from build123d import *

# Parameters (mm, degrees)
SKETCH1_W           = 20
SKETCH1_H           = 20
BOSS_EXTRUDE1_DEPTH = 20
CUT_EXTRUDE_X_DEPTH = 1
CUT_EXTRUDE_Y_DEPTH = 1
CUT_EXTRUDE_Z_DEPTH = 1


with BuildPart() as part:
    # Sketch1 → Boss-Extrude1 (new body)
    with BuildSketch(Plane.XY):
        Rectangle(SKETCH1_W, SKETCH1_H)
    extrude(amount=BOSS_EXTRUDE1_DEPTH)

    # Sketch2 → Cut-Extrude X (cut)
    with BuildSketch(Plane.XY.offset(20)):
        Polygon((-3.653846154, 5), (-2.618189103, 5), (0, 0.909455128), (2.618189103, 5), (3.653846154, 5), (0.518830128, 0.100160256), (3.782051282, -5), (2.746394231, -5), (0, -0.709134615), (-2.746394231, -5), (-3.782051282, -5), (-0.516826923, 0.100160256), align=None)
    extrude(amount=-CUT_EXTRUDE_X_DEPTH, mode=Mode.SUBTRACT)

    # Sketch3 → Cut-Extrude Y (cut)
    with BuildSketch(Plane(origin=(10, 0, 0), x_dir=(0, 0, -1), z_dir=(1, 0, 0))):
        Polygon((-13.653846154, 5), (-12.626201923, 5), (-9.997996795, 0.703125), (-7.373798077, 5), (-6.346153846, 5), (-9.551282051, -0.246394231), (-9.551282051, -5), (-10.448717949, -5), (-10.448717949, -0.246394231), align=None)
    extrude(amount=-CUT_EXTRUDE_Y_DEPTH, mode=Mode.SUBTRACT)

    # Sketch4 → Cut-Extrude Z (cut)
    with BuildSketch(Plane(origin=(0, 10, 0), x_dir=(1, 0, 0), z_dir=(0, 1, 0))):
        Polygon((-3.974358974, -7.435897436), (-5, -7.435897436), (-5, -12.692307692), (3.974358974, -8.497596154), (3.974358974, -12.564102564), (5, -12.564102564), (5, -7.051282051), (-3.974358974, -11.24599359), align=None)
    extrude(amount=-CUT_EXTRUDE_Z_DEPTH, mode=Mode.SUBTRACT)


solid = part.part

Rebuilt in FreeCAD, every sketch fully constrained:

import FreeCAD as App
import Part
import Sketcher
from FreeCAD import Vector
Q = App.Units.Quantity

doc = App.newDocument("Part")
body = doc.addObject("PartDesign::Body", "Body")

sketch1 = body.newObject("Sketcher::SketchObject", "Sketch")
sketch1.AttachmentSupport = (doc.getObject("XY_Plane"), [""])
sketch1.MapMode = "FlatFace"
sketch1.addGeometry([
    Part.LineSegment(Vector(-10, 10, 0), Vector(-10, -10, 0)),
    Part.LineSegment(Vector(-10, -10, 0), Vector(10, -10, 0)),
    Part.LineSegment(Vector(10, -10, 0), Vector(10, 10, 0)),
    Part.LineSegment(Vector(10, 10, 0), Vector(-10, 10, 0)),
], False)
sketch1.addConstraint([
    Sketcher.Constraint("Coincident", 0, 2, 1, 1),
    Sketcher.Constraint("Coincident", 1, 2, 2, 1),
    Sketcher.Constraint("Coincident", 2, 2, 3, 1),
    Sketcher.Constraint("Coincident", 3, 2, 0, 1),
    Sketcher.Constraint("Vertical", 0),
    Sketcher.Constraint("Horizontal", 1),
    Sketcher.Constraint("Vertical", 2),
    Sketcher.Constraint("Horizontal", 3),
    Sketcher.Constraint("Symmetric", 0, 2, 2, 2, -1, 1),
    Sketcher.Constraint("Equal", 3, 0),
    Sketcher.Constraint("DistanceX", 1, 1, 1, 2, Q("20 mm")),
])
pad1 = body.newObject("PartDesign::Pad", "Pad")
pad1.Profile = sketch1
pad1.Length = 20

sketch2 = body.newObject("Sketcher::SketchObject", "Sketch001")
sketch2.AttachmentSupport = (doc.getObject("XY_Plane"), [""])
sketch2.MapMode = "FlatFace"
sketch2.AttachmentOffset = App.Placement(Vector(0, 0, 20), App.Rotation())
sketch2.addGeometry([
    Part.LineSegment(Vector(-2.6, 5, 0), Vector(-3.7, 5, 0)),
    Part.LineSegment(Vector(-3.7, 5, 0), Vector(-0.5, 0.1, 0)),
    Part.LineSegment(Vector(-0.5, 0.1, 0), Vector(-3.8, -5, 0)),
    Part.LineSegment(Vector(-3.8, -5, 0), Vector(-2.7, -5, 0)),
    Part.LineSegment(Vector(-2.7, -5, 0), Vector(0, -0.7, 0)),
    Part.LineSegment(Vector(0, -0.7, 0), Vector(2.7, -5, 0)),
    Part.LineSegment(Vector(2.7, -5, 0), Vector(3.8, -5, 0)),
    Part.LineSegment(Vector(3.8, -5, 0), Vector(0.5, 0.1, 0)),
    Part.LineSegment(Vector(0.5, 0.1, 0), Vector(3.7, 5, 0)),
    Part.LineSegment(Vector(3.7, 5, 0), Vector(2.6, 5, 0)),
    Part.LineSegment(Vector(2.6, 5, 0), Vector(0, 0.9, 0)),
    Part.LineSegment(Vector(0, 0.9, 0), Vector(-2.6, 5, 0)),
], False)
sketch2.addConstraint([
    Sketcher.Constraint("Coincident", 0, 2, 1, 1),
    Sketcher.Constraint("Coincident", 1, 2, 2, 1),
    Sketcher.Constraint("Coincident", 2, 2, 3, 1),
    Sketcher.Constraint("Coincident", 3, 2, 4, 1),
    Sketcher.Constraint("Coincident", 4, 2, 5, 1),
    Sketcher.Constraint("Coincident", 5, 2, 6, 1),
    Sketcher.Constraint("Coincident", 6, 2, 7, 1),
    Sketcher.Constraint("Coincident", 7, 2, 8, 1),
    Sketcher.Constraint("Coincident", 8, 2, 9, 1),
    Sketcher.Constraint("Coincident", 9, 2, 10, 1),
    Sketcher.Constraint("Coincident", 10, 2, 11, 1),
    Sketcher.Constraint("Coincident", 11, 2, 0, 1),
    Sketcher.Constraint("Horizontal", 0),
    Sketcher.Constraint("Horizontal", 3),
    Sketcher.Constraint("Horizontal", 6),
    Sketcher.Constraint("Horizontal", 9),
    Sketcher.Constraint("Symmetric", 3, 2, 5, 2, -2),
    Sketcher.Constraint("Symmetric", 0, 2, 8, 2, -2),
    Sketcher.Constraint("PointOnObject", 4, 2, -2),
    Sketcher.Constraint("PointOnObject", 10, 2, -2),
    Sketcher.Constraint("Parallel", 4, 10),
    Sketcher.Constraint("Parallel", 5, 11),
    Sketcher.Constraint("Horizontal", 1, 2, 7, 2),
    Sketcher.Constraint("Equal", 0, 3),
    Sketcher.Constraint("Equal", 3, 6),
    Sketcher.Constraint("DistanceY", -1, 1, 0, 2, Q("5 mm")),
    Sketcher.Constraint("DistanceY", 2, 2, -1, 1, Q("5 mm")),
    Sketcher.Constraint("Distance", 2, Q("6.05585 mm")),
    Sketcher.Constraint("Distance", 7, Q("6.054771 mm")),
    Sketcher.Constraint("DistanceX", 0, 2, 0, 1, Q("1.035657 mm")),
    Sketcher.Constraint("DistanceY", -1, 1, 1, 2, Q("0.10016 mm")),
    Sketcher.Constraint("DistanceX", 2, 2, -1, 1, Q("3.782051 mm")),
    Sketcher.Constraint("DistanceX", -1, 1, 9, 2, Q("2.618189 mm")),
    Sketcher.Constraint("DistanceY", 4, 2, 10, 2, Q("1.61859 mm")),
])
pocket1 = body.newObject("PartDesign::Pocket", "Pocket")
pocket1.Profile = sketch2
pocket1.Length = 1

sketch3 = body.newObject("Sketcher::SketchObject", "Sketch002")
sketch3.AttachmentSupport = (doc.getObject("YZ_Plane"), [""])
sketch3.MapMode = "FlatFace"
sketch3.AttachmentOffset = App.Placement(Vector(0, 0, 10), App.Rotation())
sketch3.addGeometry([
    Part.LineSegment(Vector(5, 12.6, 0), Vector(5, 13.7, 0)),
    Part.LineSegment(Vector(5, 13.7, 0), Vector(-0.2, 10.4, 0)),
    Part.LineSegment(Vector(-0.2, 10.4, 0), Vector(-5, 10.4, 0)),
    Part.LineSegment(Vector(-5, 10.4, 0), Vector(-5, 9.6, 0)),
    Part.LineSegment(Vector(-5, 9.6, 0), Vector(-0.2, 9.6, 0)),
    Part.LineSegment(Vector(-0.2, 9.6, 0), Vector(5, 6.3, 0)),
    Part.LineSegment(Vector(5, 6.3, 0), Vector(5, 7.4, 0)),
    Part.LineSegment(Vector(5, 7.4, 0), Vector(0.7, 10, 0)),
    Part.LineSegment(Vector(0.7, 10, 0), Vector(5, 12.6, 0)),
], False)
sketch3.addConstraint([
    Sketcher.Constraint("Coincident", 0, 2, 1, 1),
    Sketcher.Constraint("Coincident", 1, 2, 2, 1),
    Sketcher.Constraint("Coincident", 2, 2, 3, 1),
    Sketcher.Constraint("Coincident", 3, 2, 4, 1),
    Sketcher.Constraint("Coincident", 4, 2, 5, 1),
    Sketcher.Constraint("Coincident", 5, 2, 6, 1),
    Sketcher.Constraint("Coincident", 6, 2, 7, 1),
    Sketcher.Constraint("Coincident", 7, 2, 8, 1),
    Sketcher.Constraint("Coincident", 8, 2, 0, 1),
    Sketcher.Constraint("Vertical", 0),
    Sketcher.Constraint("Horizontal", 2),
    Sketcher.Constraint("Vertical", 3),
    Sketcher.Constraint("Horizontal", 4),
    Sketcher.Constraint("Vertical", 6),
    Sketcher.Constraint("Vertical", 1, 2, 4, 2),
    Sketcher.Constraint("Vertical", 0, 2, 5, 2),
    Sketcher.Constraint("Equal", 0, 6),
    Sketcher.Constraint("Equal", 1, 5),
    Sketcher.Constraint("DistanceX", -1, 1, 0, 2, Q("5 mm")),
    Sketcher.Constraint("DistanceX", 2, 2, -1, 1, Q("5 mm")),
    Sketcher.Constraint("DistanceY", -1, 1, 6, 2, Q("7.373798 mm")),
    Sketcher.Constraint("DistanceY", -1, 1, 8, 2, Q("12.626202 mm")),
    Sketcher.Constraint("DistanceY", 6, 2, 7, 2, Q("2.624199 mm")),
    Sketcher.Constraint("DistanceX", 2, 2, 2, 1, Q("4.753606 mm")),
    Sketcher.Constraint("DistanceY", 0, 1, 0, 2, Q("1.027644 mm")),
    Sketcher.Constraint("DistanceY", 3, 2, 3, 1, Q("0.897436 mm")),
    Sketcher.Constraint("DistanceX", 4, 2, 7, 2, Q("0.949519 mm")),
])
pocket2 = body.newObject("PartDesign::Pocket", "Pocket001")
pocket2.Profile = sketch3
pocket2.Length = 1

sketch4 = body.newObject("Sketcher::SketchObject", "Sketch003")
sketch4.AttachmentSupport = (doc.getObject("XZ_Plane"), [""])
sketch4.MapMode = "FlatFace"
sketch4.AttachmentOffset = App.Placement(Vector(0, 0, -10), App.Rotation())
sketch4.addGeometry([
    Part.LineSegment(Vector(-4, 7.4, 0), Vector(-5, 7.4, 0)),
    Part.LineSegment(Vector(-5, 7.4, 0), Vector(-5, 12.7, 0)),
    Part.LineSegment(Vector(-5, 12.7, 0), Vector(4, 8.5, 0)),
    Part.LineSegment(Vector(4, 8.5, 0), Vector(4, 12.6, 0)),
    Part.LineSegment(Vector(4, 12.6, 0), Vector(5, 12.6, 0)),
    Part.LineSegment(Vector(5, 12.6, 0), Vector(5, 7.1, 0)),
    Part.LineSegment(Vector(5, 7.1, 0), Vector(-4, 11.2, 0)),
    Part.LineSegment(Vector(-4, 11.2, 0), Vector(-4, 7.4, 0)),
], False)
sketch4.addConstraint([
    Sketcher.Constraint("Coincident", 0, 2, 1, 1),
    Sketcher.Constraint("Coincident", 1, 2, 2, 1),
    Sketcher.Constraint("Coincident", 2, 2, 3, 1),
    Sketcher.Constraint("Coincident", 3, 2, 4, 1),
    Sketcher.Constraint("Coincident", 4, 2, 5, 1),
    Sketcher.Constraint("Coincident", 5, 2, 6, 1),
    Sketcher.Constraint("Coincident", 6, 2, 7, 1),
    Sketcher.Constraint("Coincident", 7, 2, 0, 1),
    Sketcher.Constraint("Horizontal", 0),
    Sketcher.Constraint("Vertical", 1),
    Sketcher.Constraint("Vertical", 3),
    Sketcher.Constraint("Horizontal", 4),
    Sketcher.Constraint("Vertical", 5),
    Sketcher.Constraint("Vertical", 7),
    Sketcher.Constraint("Parallel", 2, 6),
    Sketcher.Constraint("Equal", 0, 4),
    Sketcher.Constraint("DistanceX", 0, 2, -1, 1, Q("5 mm")),
    Sketcher.Constraint("DistanceX", -1, 1, 4, 2, Q("5 mm")),
    Sketcher.Constraint("DistanceX", 0, 2, 0, 1, Q("1.025641 mm")),
    Sketcher.Constraint("DistanceY", 1, 1, 1, 2, Q("5.25641 mm")),
    Sketcher.Constraint("DistanceY", 5, 2, 5, 1, Q("5.512821 mm")),
    Sketcher.Constraint("DistanceY", 0, 2, 2, 2, Q("1.061699 mm")),
    Sketcher.Constraint("DistanceY", 3, 1, 3, 2, Q("4.066506 mm")),
    Sketcher.Constraint("DistanceY", -1, 1, 0, 2, Q("7.435897 mm")),
])
pocket3 = body.newObject("PartDesign::Pocket", "Pocket002")
pocket3.Profile = sketch4
pocket3.Length = 1
pocket3.Reversed = True

doc.recompute()
